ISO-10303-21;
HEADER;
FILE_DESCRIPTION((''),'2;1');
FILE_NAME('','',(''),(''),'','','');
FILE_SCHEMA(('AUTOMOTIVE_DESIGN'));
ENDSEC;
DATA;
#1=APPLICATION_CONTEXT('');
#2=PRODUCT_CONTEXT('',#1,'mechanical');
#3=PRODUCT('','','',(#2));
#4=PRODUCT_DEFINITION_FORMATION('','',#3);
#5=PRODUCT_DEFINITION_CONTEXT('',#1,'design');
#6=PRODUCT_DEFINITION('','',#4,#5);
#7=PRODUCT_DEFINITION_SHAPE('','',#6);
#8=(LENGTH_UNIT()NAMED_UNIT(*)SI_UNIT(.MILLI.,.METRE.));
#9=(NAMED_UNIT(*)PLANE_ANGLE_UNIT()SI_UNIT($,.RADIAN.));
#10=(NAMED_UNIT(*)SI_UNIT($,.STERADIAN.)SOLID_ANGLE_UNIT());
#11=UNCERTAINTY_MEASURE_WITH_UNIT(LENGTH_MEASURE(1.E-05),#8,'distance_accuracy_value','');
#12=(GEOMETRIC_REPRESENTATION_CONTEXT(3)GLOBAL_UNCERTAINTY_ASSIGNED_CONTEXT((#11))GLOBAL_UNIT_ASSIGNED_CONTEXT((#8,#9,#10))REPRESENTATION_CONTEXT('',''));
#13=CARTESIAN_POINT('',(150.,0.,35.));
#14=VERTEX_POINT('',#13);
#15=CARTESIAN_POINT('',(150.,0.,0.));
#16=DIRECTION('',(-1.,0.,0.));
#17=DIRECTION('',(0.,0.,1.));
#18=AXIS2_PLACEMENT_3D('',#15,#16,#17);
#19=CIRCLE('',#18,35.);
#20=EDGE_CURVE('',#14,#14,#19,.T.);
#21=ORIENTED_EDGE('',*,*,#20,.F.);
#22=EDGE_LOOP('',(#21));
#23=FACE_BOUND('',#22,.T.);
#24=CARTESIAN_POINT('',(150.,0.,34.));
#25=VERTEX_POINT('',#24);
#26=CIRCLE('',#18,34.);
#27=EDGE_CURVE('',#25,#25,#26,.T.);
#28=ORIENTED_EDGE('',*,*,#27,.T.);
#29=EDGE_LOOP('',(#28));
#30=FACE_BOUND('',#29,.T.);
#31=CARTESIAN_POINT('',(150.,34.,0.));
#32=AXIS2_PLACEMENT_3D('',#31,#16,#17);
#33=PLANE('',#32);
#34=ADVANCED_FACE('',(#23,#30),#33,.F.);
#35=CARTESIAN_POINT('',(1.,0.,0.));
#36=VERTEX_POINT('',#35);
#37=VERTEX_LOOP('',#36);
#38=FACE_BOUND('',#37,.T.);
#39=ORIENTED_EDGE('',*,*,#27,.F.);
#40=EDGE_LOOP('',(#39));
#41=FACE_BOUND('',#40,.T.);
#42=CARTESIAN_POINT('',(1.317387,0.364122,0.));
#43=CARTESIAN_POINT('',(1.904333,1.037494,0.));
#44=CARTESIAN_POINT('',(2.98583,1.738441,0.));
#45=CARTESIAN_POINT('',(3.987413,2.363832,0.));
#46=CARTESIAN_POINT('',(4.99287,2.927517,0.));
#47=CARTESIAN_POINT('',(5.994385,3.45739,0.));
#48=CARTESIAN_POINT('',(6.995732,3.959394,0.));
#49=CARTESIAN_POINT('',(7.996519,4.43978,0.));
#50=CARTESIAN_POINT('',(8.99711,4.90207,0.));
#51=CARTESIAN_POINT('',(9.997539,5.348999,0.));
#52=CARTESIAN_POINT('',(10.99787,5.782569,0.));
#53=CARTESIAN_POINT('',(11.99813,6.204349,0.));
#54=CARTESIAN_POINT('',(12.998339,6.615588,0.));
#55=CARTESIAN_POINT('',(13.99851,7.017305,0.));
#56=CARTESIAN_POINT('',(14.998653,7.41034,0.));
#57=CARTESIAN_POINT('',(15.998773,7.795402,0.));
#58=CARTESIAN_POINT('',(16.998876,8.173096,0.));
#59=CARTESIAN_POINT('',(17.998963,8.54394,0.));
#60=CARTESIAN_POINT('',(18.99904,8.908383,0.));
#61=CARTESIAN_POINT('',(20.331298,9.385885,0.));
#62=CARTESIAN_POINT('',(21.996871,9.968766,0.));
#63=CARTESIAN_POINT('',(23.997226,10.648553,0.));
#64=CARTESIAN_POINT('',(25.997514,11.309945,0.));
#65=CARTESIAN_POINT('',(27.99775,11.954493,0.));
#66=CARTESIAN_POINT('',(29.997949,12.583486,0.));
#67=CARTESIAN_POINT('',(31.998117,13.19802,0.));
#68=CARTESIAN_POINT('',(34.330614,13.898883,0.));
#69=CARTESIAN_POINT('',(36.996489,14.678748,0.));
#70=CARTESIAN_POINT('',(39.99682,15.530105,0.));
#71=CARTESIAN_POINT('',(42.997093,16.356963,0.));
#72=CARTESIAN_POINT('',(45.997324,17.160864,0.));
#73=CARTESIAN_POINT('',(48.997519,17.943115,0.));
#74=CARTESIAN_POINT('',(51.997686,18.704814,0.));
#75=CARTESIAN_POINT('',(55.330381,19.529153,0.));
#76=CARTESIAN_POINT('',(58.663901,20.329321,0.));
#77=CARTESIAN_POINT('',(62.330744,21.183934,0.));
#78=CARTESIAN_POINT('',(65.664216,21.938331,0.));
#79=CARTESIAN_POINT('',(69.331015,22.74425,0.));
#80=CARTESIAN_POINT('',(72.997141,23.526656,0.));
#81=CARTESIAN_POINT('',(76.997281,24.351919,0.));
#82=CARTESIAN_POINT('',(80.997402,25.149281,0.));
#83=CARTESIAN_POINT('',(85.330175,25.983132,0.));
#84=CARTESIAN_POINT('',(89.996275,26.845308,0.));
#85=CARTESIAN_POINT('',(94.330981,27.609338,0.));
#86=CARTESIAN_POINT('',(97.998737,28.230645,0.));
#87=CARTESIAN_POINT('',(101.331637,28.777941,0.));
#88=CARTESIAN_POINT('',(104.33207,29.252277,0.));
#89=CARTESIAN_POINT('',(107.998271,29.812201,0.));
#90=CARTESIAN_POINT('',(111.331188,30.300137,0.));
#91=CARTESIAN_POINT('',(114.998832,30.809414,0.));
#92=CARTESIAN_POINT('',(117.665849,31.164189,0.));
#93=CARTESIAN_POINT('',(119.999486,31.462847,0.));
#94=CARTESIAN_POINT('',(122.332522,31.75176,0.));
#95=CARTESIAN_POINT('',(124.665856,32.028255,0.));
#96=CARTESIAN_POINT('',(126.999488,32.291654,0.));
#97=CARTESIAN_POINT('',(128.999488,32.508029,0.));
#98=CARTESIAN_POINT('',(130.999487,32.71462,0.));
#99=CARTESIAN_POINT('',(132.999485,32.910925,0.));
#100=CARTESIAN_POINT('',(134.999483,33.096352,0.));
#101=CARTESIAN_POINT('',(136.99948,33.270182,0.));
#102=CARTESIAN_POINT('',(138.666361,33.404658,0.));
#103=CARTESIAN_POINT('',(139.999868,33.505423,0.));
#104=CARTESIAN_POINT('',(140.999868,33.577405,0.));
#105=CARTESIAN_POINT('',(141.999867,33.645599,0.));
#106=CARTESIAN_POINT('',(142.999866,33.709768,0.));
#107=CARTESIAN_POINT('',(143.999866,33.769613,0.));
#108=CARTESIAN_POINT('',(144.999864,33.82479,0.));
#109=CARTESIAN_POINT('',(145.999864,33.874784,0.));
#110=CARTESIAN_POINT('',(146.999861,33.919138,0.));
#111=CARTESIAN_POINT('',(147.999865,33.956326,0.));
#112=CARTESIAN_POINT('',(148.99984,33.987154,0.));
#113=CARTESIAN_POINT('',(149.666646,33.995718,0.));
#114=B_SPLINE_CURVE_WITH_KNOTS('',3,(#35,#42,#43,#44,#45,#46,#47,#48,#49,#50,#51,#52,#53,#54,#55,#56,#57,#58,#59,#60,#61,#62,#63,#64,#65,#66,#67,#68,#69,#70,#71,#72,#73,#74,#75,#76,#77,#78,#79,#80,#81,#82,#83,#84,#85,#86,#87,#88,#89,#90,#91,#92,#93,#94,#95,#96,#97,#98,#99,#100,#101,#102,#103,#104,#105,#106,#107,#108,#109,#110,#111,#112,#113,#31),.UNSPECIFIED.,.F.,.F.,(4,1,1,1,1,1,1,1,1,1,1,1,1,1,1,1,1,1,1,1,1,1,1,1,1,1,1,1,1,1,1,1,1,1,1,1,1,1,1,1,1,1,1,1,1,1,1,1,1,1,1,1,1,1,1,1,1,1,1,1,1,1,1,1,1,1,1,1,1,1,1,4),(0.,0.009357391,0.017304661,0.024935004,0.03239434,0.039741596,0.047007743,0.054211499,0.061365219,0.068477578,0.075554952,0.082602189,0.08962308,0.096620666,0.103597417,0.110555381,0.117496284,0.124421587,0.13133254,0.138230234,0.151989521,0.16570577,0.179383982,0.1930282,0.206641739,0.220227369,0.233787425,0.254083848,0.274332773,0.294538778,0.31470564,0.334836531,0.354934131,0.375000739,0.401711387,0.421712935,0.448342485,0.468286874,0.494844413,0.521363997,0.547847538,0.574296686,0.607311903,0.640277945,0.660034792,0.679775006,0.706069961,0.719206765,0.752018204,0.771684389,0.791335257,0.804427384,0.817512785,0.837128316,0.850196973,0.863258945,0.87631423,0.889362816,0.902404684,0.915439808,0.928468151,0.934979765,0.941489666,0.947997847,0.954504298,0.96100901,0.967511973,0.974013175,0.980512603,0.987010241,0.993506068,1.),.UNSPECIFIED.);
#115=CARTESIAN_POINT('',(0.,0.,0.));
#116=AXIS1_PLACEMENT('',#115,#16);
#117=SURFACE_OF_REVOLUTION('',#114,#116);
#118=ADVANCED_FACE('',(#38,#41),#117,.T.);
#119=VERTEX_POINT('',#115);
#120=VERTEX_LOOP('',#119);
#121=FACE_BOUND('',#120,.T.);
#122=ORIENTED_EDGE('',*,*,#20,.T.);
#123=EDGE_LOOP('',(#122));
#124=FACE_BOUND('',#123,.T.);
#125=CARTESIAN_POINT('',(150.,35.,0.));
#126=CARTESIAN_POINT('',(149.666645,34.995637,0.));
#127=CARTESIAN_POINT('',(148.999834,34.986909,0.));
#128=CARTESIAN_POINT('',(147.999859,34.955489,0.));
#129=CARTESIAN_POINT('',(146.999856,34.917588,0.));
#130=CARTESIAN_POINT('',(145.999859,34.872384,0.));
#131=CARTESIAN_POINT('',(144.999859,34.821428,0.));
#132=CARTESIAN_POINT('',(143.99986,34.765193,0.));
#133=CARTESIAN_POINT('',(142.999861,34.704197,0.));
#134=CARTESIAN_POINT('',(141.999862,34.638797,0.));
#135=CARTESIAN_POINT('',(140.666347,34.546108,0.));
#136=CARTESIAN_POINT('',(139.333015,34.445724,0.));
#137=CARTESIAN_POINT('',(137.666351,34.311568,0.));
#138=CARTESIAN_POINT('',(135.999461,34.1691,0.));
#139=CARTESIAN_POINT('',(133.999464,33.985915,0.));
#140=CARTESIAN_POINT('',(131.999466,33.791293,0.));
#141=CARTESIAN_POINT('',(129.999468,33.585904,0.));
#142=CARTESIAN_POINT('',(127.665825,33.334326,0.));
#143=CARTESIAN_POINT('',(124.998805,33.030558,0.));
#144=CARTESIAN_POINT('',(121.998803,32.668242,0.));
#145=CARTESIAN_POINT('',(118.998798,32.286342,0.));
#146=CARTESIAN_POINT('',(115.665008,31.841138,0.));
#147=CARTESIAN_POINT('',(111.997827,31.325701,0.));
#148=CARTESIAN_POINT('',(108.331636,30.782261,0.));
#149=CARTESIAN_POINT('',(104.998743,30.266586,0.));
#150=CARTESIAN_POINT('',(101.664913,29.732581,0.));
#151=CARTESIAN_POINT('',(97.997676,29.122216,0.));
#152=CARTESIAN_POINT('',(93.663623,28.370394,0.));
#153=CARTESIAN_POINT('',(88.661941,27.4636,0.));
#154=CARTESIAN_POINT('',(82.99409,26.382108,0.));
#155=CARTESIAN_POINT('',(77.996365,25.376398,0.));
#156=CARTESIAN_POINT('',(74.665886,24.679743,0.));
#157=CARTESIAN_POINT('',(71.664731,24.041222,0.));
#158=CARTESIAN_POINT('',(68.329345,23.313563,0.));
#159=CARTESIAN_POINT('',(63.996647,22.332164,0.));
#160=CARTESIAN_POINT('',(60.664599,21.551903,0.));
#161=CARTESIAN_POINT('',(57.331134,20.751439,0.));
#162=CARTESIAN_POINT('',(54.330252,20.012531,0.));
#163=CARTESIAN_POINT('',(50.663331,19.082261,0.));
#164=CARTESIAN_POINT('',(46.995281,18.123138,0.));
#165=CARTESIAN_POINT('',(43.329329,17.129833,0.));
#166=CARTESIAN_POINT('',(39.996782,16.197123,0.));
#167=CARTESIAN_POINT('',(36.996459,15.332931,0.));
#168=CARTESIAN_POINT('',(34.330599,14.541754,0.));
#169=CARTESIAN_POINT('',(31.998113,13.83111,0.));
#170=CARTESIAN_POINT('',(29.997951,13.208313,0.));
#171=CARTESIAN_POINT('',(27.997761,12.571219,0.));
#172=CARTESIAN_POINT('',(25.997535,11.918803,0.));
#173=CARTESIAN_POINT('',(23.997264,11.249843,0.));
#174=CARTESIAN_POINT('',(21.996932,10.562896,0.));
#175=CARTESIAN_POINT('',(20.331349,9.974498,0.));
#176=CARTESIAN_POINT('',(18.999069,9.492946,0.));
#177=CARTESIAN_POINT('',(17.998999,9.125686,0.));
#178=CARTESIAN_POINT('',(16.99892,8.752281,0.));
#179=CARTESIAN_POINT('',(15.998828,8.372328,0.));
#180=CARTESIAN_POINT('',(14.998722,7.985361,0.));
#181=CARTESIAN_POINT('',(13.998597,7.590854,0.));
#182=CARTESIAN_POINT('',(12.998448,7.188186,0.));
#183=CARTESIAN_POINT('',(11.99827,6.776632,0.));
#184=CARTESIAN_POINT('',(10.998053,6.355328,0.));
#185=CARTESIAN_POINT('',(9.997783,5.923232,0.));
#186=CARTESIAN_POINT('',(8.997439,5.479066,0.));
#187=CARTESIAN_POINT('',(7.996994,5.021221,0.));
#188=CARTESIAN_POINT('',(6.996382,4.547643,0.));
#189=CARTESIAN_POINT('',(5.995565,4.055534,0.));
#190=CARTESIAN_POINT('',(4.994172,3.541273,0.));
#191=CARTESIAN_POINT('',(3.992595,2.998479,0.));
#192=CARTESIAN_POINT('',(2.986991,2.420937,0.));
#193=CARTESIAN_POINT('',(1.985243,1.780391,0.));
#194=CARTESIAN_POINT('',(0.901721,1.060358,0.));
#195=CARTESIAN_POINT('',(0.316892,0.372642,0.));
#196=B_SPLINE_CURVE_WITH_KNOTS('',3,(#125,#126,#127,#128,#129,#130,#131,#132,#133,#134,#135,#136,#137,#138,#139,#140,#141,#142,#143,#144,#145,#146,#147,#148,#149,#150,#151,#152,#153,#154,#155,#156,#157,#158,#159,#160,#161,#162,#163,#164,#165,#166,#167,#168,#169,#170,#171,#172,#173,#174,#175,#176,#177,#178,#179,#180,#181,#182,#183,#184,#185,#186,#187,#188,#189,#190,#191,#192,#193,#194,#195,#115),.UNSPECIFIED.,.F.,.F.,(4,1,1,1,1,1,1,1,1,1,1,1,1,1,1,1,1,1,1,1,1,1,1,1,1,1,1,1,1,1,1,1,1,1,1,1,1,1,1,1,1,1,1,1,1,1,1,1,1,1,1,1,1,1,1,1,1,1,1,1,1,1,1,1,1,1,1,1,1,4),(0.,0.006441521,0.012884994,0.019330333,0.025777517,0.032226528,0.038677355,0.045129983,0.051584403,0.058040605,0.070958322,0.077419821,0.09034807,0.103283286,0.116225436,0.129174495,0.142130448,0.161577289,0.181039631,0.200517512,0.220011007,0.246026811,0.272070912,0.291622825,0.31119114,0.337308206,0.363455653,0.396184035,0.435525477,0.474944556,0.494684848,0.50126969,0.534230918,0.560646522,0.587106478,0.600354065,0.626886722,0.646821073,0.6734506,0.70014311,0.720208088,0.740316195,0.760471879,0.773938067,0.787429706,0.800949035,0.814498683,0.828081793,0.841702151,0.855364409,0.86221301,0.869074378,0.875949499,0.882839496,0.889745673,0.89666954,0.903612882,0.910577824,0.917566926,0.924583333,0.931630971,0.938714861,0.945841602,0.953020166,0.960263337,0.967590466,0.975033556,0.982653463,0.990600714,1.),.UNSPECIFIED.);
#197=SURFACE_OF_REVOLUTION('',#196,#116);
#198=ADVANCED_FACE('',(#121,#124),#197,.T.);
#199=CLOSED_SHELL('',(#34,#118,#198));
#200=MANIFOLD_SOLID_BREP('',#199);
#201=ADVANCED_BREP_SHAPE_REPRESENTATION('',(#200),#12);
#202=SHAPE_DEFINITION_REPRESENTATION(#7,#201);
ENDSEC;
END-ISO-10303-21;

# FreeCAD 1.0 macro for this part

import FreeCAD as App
import Part
import Sketcher

V = App.Vector

doc = App.newDocument("Part")
body = doc.addObject("PartDesign::Body", "Body")

# Sketch on XY plane
sketch1 = doc.addObject("Sketcher::SketchObject", "Sketch")
body.addObject(sketch1)
sketch1.AttachmentSupport = (doc.XY_Plane, [""])
sketch1.MapMode = "FlatFace"
sketch1.addGeometry(Part.LineSegment(V(0, 0, 0), V(1, 0, 0)), False)
sketch1.addGeometry(Part.BSplineCurve([V(1, 0, 0), V(1.317387, 0.364122, 0), V(1.904333, 1.037494, 0), V(2.98583, 1.738441, 0), V(3.987413, 2.363832, 0), V(4.99287, 2.927517, 0), V(5.994385, 3.45739, 0), V(6.995732, 3.959394, 0), V(7.996519, 4.43978, 0), V(8.99711, 4.90207, 0), V(9.997539, 5.348999, 0), V(10.99787, 5.782569, 0), V(11.99813, 6.204349, 0), V(12.998339, 6.615588, 0), V(13.99851, 7.017305, 0), V(14.998653, 7.41034, 0), V(15.998773, 7.795402, 0), V(16.998876, 8.173096, 0), V(17.998963, 8.54394, 0), V(18.99904, 8.908383, 0), V(20.331298, 9.385885, 0), V(21.996871, 9.968766, 0), V(23.997226, 10.648553, 0), V(25.997514, 11.309945, 0), V(27.99775, 11.954493, 0), V(29.997949, 12.583486, 0), V(31.998117, 13.19802, 0), V(34.330614, 13.898883, 0), V(36.996489, 14.678748, 0), V(39.99682, 15.530105, 0), V(42.997093, 16.356963, 0), V(45.997324, 17.160864, 0), V(48.997519, 17.943115, 0), V(51.997686, 18.704814, 0), V(55.330381, 19.529153, 0), V(58.663901, 20.329321, 0), V(62.330744, 21.183934, 0), V(65.664216, 21.938331, 0), V(69.331015, 22.74425, 0), V(72.997141, 23.526656, 0), V(76.997281, 24.351919, 0), V(80.997402, 25.149281, 0), V(85.330175, 25.983132, 0), V(89.996275, 26.845308, 0), V(94.330981, 27.609338, 0), V(97.998737, 28.230645, 0), V(101.331637, 28.777941, 0), V(104.33207, 29.252277, 0), V(107.998271, 29.812201, 0), V(111.331188, 30.300137, 0), V(114.998832, 30.809414, 0), V(117.665849, 31.164189, 0), V(119.999486, 31.462847, 0), V(122.332522, 31.75176, 0), V(124.665856, 32.028255, 0), V(126.999488, 32.291654, 0), V(128.999488, 32.508029, 0), V(130.999487, 32.71462, 0), V(132.999485, 32.910925, 0), V(134.999483, 33.096352, 0), V(136.99948, 33.270182, 0), V(138.666361, 33.404658, 0), V(139.999868, 33.505423, 0), V(140.999868, 33.577405, 0), V(141.999867, 33.645599, 0), V(142.999866, 33.709768, 0), V(143.999866, 33.769613, 0), V(144.999864, 33.82479, 0), V(145.999864, 33.874784, 0), V(146.999861, 33.919138, 0), V(147.999865, 33.956326, 0), V(148.99984, 33.987154, 0), V(149.666646, 33.995718, 0), V(150, 34, 0)], [4, 1, 1, 1, 1, 1, 1, 1, 1, 1, 1, 1, 1, 1, 1, 1, 1, 1, 1, 1, 1, 1, 1, 1, 1, 1, 1, 1, 1, 1, 1, 1, 1, 1, 1, 1, 1, 1, 1, 1, 1, 1, 1, 1, 1, 1, 1, 1, 1, 1, 1, 1, 1, 1, 1, 1, 1, 1, 1, 1, 1, 1, 1, 1, 1, 1, 1, 1, 1, 1, 1, 4], [0, 0.009357391, 0.017304661, 0.024935004, 0.03239434, 0.039741596, 0.047007743, 0.054211499, 0.061365219, 0.068477578, 0.075554952, 0.082602189, 0.08962308, 0.096620666, 0.103597417, 0.110555381, 0.117496284, 0.124421587, 0.13133254, 0.138230234, 0.151989521, 0.16570577, 0.179383982, 0.1930282, 0.206641739, 0.220227369, 0.233787425, 0.254083848, 0.274332773, 0.294538778, 0.31470564, 0.334836531, 0.354934131, 0.375000739, 0.401711387, 0.421712935, 0.448342485, 0.468286874, 0.494844413, 0.521363997, 0.547847538, 0.574296686, 0.607311903, 0.640277945, 0.660034792, 0.679775006, 0.706069961, 0.719206765, 0.752018204, 0.771684389, 0.791335257, 0.804427384, 0.817512785, 0.837128316, 0.850196973, 0.863258945, 0.87631423, 0.889362816, 0.902404684, 0.915439808, 0.928468151, 0.934979765, 0.941489666, 0.947997847, 0.954504298, 0.96100901, 0.967511973, 0.974013175, 0.980512603, 0.987010241, 0.993506068, 1], False, 3, [1, 1, 1, 1, 1, 1, 1, 1, 1, 1, 1, 1, 1, 1, 1, 1, 1, 1, 1, 1, 1, 1, 1, 1, 1, 1, 1, 1, 1, 1, 1, 1, 1, 1, 1, 1, 1, 1, 1, 1, 1, 1, 1, 1, 1, 1, 1, 1, 1, 1, 1, 1, 1, 1, 1, 1, 1, 1, 1, 1, 1, 1, 1, 1, 1, 1, 1, 1, 1, 1, 1, 1, 1, 1], False), False)
sketch1.addGeometry(Part.LineSegment(V(150, 34, 0), V(150, 35, 0)), False)
sketch1.addGeometry(Part.BSplineCurve([V(0, 0, 0), V(0.316892, 0.372642, 0), V(0.901721, 1.060358, 0), V(1.985243, 1.780391, 0), V(2.986991, 2.420937, 0), V(3.992595, 2.998479, 0), V(4.994172, 3.541273, 0), V(5.995565, 4.055534, 0), V(6.996382, 4.547643, 0), V(7.996994, 5.021221, 0), V(8.997439, 5.479066, 0), V(9.997783, 5.923232, 0), V(10.998053, 6.355328, 0), V(11.99827, 6.776632, 0), V(12.998448, 7.188186, 0), V(13.998597, 7.590854, 0), V(14.998722, 7.985361, 0), V(15.998828, 8.372328, 0), V(16.99892, 8.752281, 0), V(17.998999, 9.125686, 0), V(18.999069, 9.492946, 0), V(20.331349, 9.974498, 0), V(21.996932, 10.562896, 0), V(23.997264, 11.249843, 0), V(25.997535, 11.918803, 0), V(27.997761, 12.571219, 0), V(29.997951, 13.208313, 0), V(31.998113, 13.83111, 0), V(34.330599, 14.541754, 0), V(36.996459, 15.332931, 0), V(39.996782, 16.197123, 0), V(43.329329, 17.129833, 0), V(46.995281, 18.123138, 0), V(50.663331, 19.082261, 0), V(54.330252, 20.012531, 0), V(57.331134, 20.751439, 0), V(60.664599, 21.551903, 0), V(63.996647, 22.332164, 0), V(68.329345, 23.313563, 0), V(71.664731, 24.041222, 0), V(74.665886, 24.679743, 0), V(77.996365, 25.376398, 0), V(82.99409, 26.382108, 0), V(88.661941, 27.4636, 0), V(93.663623, 28.370394, 0), V(97.997676, 29.122216, 0), V(101.664913, 29.732581, 0), V(104.998743, 30.266586, 0), V(108.331636, 30.782261, 0), V(111.997827, 31.325701, 0), V(115.665008, 31.841138, 0), V(118.998798, 32.286342, 0), V(121.998803, 32.668242, 0), V(124.998805, 33.030558, 0), V(127.665825, 33.334326, 0), V(129.999468, 33.585904, 0), V(131.999466, 33.791293, 0), V(133.999464, 33.985915, 0), V(135.999461, 34.1691, 0), V(137.666351, 34.311568, 0), V(139.333015, 34.445724, 0), V(140.666347, 34.546108, 0), V(141.999862, 34.638797, 0), V(142.999861, 34.704197, 0), V(143.99986, 34.765193, 0), V(144.999859, 34.821428, 0), V(145.999859, 34.872384, 0), V(146.999856, 34.917588, 0), V(147.999859, 34.955489, 0), V(148.999834, 34.986909, 0), V(149.666645, 34.995637, 0), V(150, 35, 0)], [4, 1, 1, 1, 1, 1, 1, 1, 1, 1, 1, 1, 1, 1, 1, 1, 1, 1, 1, 1, 1, 1, 1, 1, 1, 1, 1, 1, 1, 1, 1, 1, 1, 1, 1, 1, 1, 1, 1, 1, 1, 1, 1, 1, 1, 1, 1, 1, 1, 1, 1, 1, 1, 1, 1, 1, 1, 1, 1, 1, 1, 1, 1, 1, 1, 1, 1, 1, 1, 4], [0, 0.009399286, 0.017346537, 0.024966444, 0.032409534, 0.039736663, 0.046979834, 0.054158398, 0.061285139, 0.068369029, 0.075416667, 0.082433074, 0.089422176, 0.096387118, 0.10333046, 0.110254327, 0.117160504, 0.124050501, 0.130925622, 0.13778699, 0.144635591, 0.158297849, 0.171918207, 0.185501317, 0.199050965, 0.212570294, 0.226061933, 0.239528121, 0.259683805, 0.279791912, 0.29985689, 0.3265494, 0.353178927, 0.373113278, 0.399645935, 0.412893522, 0.439353478, 0.465769082, 0.49873031, 0.505315152, 0.525055444, 0.564474523, 0.603815965, 0.636544347, 0.662691794, 0.68880886, 0.708377175, 0.727929088, 0.753973189, 0.779988993, 0.799482488, 0.818960369, 0.838422711, 0.857869552, 0.870825505, 0.883774564, 0.896716714, 0.90965193, 0.922580179, 0.929041678, 0.941959395, 0.948415597, 0.954870017, 0.961322645, 0.967773472, 0.974222483, 0.980669667, 0.987115006, 0.993558479, 1], False, 3, [1, 1, 1, 1, 1, 1, 1, 1, 1, 1, 1, 1, 1, 1, 1, 1, 1, 1, 1, 1, 1, 1, 1, 1, 1, 1, 1, 1, 1, 1, 1, 1, 1, 1, 1, 1, 1, 1, 1, 1, 1, 1, 1, 1, 1, 1, 1, 1, 1, 1, 1, 1, 1, 1, 1, 1, 1, 1, 1, 1, 1, 1, 1, 1, 1, 1, 1, 1, 1, 1, 1, 1], False), False)
sketch1.addConstraint(Sketcher.Constraint("Block", 1))
sketch1.addConstraint(Sketcher.Constraint("Block", 3))
sketch1.addConstraint(Sketcher.Constraint("Coincident", 0, 2, 1, 1))
sketch1.addConstraint(Sketcher.Constraint("Coincident", 1, 2, 2, 1))
sketch1.addConstraint(Sketcher.Constraint("Coincident", 2, 2, 3, 2))
sketch1.addConstraint(Sketcher.Constraint("Coincident", 3, 1, 0, 1))
revolution = doc.addObject("PartDesign::Revolution", "Revolution")
body.addObject(revolution)
revolution.Profile = sketch1
revolution.ReferenceAxis = (sketch1, ["H_Axis"])
revolution.Angle = 360

doc.recompute()
